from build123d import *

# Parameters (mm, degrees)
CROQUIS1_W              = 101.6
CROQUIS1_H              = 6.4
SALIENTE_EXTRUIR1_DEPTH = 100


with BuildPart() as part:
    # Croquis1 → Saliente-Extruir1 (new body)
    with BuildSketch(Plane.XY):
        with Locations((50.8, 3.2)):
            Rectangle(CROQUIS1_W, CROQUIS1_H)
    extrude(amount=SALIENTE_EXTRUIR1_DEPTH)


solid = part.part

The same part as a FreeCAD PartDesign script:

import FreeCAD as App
import Part
import Sketcher

V = App.Vector
Q = App.Units.Quantity

doc = App.newDocument("Part")
body = doc.addObject("PartDesign::Body", "Body")

# Sketch on XY plane
sketch1 = body.newObject("Sketcher::SketchObject", "Sketch")
sketch1.AttachmentSupport = (doc.getObject("XY_Plane"), [""])
sketch1.MapMode = "FlatFace"
sketch1.addGeometry([
    Part.LineSegment(V(0, 6, 0), V(0, 0, 0)),
    Part.LineSegment(V(0, 0, 0), V(102, 0, 0)),
    Part.LineSegment(V(102, 0, 0), V(102, 6, 0)),
    Part.LineSegment(V(102, 6, 0), V(0, 6, 0)),
], False)
sketch1.addConstraint([
    Sketcher.Constraint("Coincident", 0, 2, 1, 1),
    Sketcher.Constraint("Coincident", 1, 2, 2, 1),
    Sketcher.Constraint("Coincident", 2, 2, 3, 1),
    Sketcher.Constraint("Coincident", 3, 2, 0, 1),
    Sketcher.Constraint("Vertical", 0),
    Sketcher.Constraint("Horizontal", 1),
    Sketcher.Constraint("Vertical", 2),
    Sketcher.Constraint("Horizontal", 3),
    Sketcher.Constraint("Coincident", 0, 2, -1, 1),
    Sketcher.Constraint("DistanceX", 1, 1, 1, 2, Q("101.6 mm")),
    Sketcher.Constraint("DistanceY", 0, 2, 0, 1, Q("6.4 mm")),
])
pad1 = body.newObject("PartDesign::Pad", "Pad")
pad1.Profile = sketch1
pad1.Length = 100

doc.recompute()
